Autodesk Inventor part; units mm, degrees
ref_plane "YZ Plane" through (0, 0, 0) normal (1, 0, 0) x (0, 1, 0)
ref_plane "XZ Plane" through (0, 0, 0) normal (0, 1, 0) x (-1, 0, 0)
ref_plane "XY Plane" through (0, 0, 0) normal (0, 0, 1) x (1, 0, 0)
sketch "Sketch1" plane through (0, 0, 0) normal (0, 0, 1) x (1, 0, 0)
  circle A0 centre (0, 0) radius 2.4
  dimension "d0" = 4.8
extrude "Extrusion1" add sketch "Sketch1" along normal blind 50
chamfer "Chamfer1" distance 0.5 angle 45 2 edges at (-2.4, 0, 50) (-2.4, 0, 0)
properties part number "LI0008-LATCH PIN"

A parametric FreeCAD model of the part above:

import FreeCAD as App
import Part
import Sketcher
from FreeCAD import Vector
Q = App.Units.Quantity


def edges_at(feature, points):
    """Names of the edges that pass closest to the given points."""
    edges = feature.Shape.Edges
    near = lambda p: min(range(len(edges)), key=lambda i: edges[i].distToShape(Part.Vertex(*p))[0])
    return sorted({f"Edge{near(p) + 1}" for p in points})

doc = App.newDocument("Part")
body = doc.addObject("PartDesign::Body", "Body")

# Sketch on XY plane
sketch1 = body.newObject("Sketcher::SketchObject", "Sketch")
sketch1.AttachmentSupport = (doc.getObject("XY_Plane"), [""])
sketch1.MapMode = "FlatFace"
sketch1.addGeometry(Part.Circle(Vector(0, 0, 0), Vector(0, 0, 1), 2.4), False)
sketch1.addConstraint([
    Sketcher.Constraint("Coincident", 0, 3, -1, 1),
    Sketcher.Constraint("Diameter", 0, Q("4.8 mm")),
])
pad1 = body.newObject("PartDesign::Pad", "Pad")
pad1.Profile = sketch1
pad1.Length = 50
doc.recompute()

chamfer = body.newObject("PartDesign::Chamfer", "Chamfer")
chamfer.Base = (pad1, edges_at(pad1, [(-2.4, 0, 50), (-2.4, 0, 0)]))
chamfer.Size = 0.5

doc.recompute()
